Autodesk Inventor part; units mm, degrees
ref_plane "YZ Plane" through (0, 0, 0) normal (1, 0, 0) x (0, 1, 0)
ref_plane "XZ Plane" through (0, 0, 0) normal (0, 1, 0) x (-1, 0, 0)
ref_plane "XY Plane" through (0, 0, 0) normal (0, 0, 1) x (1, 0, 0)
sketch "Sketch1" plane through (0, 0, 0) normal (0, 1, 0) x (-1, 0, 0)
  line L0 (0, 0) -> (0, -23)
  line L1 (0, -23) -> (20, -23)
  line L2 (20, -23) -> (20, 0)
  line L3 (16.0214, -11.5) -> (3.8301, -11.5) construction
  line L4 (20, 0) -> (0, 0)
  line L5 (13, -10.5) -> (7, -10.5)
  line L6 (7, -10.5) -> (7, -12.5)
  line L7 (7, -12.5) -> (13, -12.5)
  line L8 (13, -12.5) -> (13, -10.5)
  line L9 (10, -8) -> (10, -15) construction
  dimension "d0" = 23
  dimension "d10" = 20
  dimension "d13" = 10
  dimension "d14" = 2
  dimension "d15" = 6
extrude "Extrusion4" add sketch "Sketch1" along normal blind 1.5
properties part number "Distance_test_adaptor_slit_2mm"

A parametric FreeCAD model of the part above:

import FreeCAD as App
import Part
import Sketcher


def add_polygon(sketch, points):
    """Adds a closed chain of lines whose ends are joined by coincident constraints."""
    first, n = sketch.GeometryCount, len(points)
    for a, b in zip(points, points[1:] + points[:1]):
        sketch.addGeometry(Part.LineSegment(App.Vector(*a, 0), App.Vector(*b, 0)), False)
    for i in range(n):
        sketch.addConstraint(Sketcher.Constraint("Coincident", first + i, 2, first + (i + 1) % n, 1))

doc = App.newDocument("Part")
params = doc.addObject("Spreadsheet::Sheet", "Params")
for row, (alias, value) in enumerate([
    ("sketch1_width", "20 mm"),
    ("sketch1_width2", "6 mm"),
    ("sketch1_height", "23 mm"),
    ("sketch1_height2", "2 mm"),
    ("pad1_length", "1.5 mm"),
], start=1):
    params.set(f"A{row}", alias)
    params.set(f"B{row}", "=" + value)
    params.setAlias(f"B{row}", alias)

body = doc.addObject("PartDesign::Body", "Body")

# Sketch on XZ plane
sketch1 = body.newObject("Sketcher::SketchObject", "Sketch")
sketch1.AttachmentSupport = (doc.getObject("XZ_Plane"), [""])
sketch1.MapMode = "FlatFace"
add_polygon(sketch1, [(-20, 0), (0, 0), (0, -23), (-20, -23)])  # lines 0-3
add_polygon(sketch1, [(-7, -10.5), (-13, -10.5), (-13, -12.5), (-7, -12.5)])  # lines 4-7
sketch1.addConstraint(Sketcher.Constraint("Horizontal", 0))
sketch1.addConstraint(Sketcher.Constraint("Vertical", 1))
sketch1.addConstraint(Sketcher.Constraint("Horizontal", 2))
sketch1.addConstraint(Sketcher.Constraint("Vertical", 3))
sketch1.addConstraint(Sketcher.Constraint("Horizontal", 4))
sketch1.addConstraint(Sketcher.Constraint("Vertical", 5))
sketch1.addConstraint(Sketcher.Constraint("Horizontal", 6))
sketch1.addConstraint(Sketcher.Constraint("Vertical", 7))
sketch1.addConstraint(Sketcher.Constraint("Coincident", 0, 2, -1, 1))
sketch1.addConstraint(Sketcher.Constraint("DistanceX", 0, 1, 0, 2, 20.0))
sketch1.addConstraint(Sketcher.Constraint("DistanceX", 4, 2, 4, 1, 6.0))
sketch1.addConstraint(Sketcher.Constraint("DistanceY", 1, 2, 1, 1, 23.0))
sketch1.addConstraint(Sketcher.Constraint("DistanceY", 5, 2, 5, 1, 2.0))
sketch1.addConstraint(Sketcher.Constraint("DistanceX", 4, 2, -1, 1, 13.0))
sketch1.addConstraint(Sketcher.Constraint("DistanceY", 4, 2, -1, 1, 10.5))
sketch1.setExpression("Constraints[17]", "Params.sketch1_width")
sketch1.setExpression("Constraints[18]", "Params.sketch1_width2")
sketch1.setExpression("Constraints[19]", "Params.sketch1_height")
sketch1.setExpression("Constraints[20]", "Params.sketch1_height2")
pad1 = body.newObject("PartDesign::Pad", "Pad")
pad1.Profile = sketch1
pad1.setExpression("Length", "Params.pad1_length")
pad1.Reversed = True

doc.recompute()
